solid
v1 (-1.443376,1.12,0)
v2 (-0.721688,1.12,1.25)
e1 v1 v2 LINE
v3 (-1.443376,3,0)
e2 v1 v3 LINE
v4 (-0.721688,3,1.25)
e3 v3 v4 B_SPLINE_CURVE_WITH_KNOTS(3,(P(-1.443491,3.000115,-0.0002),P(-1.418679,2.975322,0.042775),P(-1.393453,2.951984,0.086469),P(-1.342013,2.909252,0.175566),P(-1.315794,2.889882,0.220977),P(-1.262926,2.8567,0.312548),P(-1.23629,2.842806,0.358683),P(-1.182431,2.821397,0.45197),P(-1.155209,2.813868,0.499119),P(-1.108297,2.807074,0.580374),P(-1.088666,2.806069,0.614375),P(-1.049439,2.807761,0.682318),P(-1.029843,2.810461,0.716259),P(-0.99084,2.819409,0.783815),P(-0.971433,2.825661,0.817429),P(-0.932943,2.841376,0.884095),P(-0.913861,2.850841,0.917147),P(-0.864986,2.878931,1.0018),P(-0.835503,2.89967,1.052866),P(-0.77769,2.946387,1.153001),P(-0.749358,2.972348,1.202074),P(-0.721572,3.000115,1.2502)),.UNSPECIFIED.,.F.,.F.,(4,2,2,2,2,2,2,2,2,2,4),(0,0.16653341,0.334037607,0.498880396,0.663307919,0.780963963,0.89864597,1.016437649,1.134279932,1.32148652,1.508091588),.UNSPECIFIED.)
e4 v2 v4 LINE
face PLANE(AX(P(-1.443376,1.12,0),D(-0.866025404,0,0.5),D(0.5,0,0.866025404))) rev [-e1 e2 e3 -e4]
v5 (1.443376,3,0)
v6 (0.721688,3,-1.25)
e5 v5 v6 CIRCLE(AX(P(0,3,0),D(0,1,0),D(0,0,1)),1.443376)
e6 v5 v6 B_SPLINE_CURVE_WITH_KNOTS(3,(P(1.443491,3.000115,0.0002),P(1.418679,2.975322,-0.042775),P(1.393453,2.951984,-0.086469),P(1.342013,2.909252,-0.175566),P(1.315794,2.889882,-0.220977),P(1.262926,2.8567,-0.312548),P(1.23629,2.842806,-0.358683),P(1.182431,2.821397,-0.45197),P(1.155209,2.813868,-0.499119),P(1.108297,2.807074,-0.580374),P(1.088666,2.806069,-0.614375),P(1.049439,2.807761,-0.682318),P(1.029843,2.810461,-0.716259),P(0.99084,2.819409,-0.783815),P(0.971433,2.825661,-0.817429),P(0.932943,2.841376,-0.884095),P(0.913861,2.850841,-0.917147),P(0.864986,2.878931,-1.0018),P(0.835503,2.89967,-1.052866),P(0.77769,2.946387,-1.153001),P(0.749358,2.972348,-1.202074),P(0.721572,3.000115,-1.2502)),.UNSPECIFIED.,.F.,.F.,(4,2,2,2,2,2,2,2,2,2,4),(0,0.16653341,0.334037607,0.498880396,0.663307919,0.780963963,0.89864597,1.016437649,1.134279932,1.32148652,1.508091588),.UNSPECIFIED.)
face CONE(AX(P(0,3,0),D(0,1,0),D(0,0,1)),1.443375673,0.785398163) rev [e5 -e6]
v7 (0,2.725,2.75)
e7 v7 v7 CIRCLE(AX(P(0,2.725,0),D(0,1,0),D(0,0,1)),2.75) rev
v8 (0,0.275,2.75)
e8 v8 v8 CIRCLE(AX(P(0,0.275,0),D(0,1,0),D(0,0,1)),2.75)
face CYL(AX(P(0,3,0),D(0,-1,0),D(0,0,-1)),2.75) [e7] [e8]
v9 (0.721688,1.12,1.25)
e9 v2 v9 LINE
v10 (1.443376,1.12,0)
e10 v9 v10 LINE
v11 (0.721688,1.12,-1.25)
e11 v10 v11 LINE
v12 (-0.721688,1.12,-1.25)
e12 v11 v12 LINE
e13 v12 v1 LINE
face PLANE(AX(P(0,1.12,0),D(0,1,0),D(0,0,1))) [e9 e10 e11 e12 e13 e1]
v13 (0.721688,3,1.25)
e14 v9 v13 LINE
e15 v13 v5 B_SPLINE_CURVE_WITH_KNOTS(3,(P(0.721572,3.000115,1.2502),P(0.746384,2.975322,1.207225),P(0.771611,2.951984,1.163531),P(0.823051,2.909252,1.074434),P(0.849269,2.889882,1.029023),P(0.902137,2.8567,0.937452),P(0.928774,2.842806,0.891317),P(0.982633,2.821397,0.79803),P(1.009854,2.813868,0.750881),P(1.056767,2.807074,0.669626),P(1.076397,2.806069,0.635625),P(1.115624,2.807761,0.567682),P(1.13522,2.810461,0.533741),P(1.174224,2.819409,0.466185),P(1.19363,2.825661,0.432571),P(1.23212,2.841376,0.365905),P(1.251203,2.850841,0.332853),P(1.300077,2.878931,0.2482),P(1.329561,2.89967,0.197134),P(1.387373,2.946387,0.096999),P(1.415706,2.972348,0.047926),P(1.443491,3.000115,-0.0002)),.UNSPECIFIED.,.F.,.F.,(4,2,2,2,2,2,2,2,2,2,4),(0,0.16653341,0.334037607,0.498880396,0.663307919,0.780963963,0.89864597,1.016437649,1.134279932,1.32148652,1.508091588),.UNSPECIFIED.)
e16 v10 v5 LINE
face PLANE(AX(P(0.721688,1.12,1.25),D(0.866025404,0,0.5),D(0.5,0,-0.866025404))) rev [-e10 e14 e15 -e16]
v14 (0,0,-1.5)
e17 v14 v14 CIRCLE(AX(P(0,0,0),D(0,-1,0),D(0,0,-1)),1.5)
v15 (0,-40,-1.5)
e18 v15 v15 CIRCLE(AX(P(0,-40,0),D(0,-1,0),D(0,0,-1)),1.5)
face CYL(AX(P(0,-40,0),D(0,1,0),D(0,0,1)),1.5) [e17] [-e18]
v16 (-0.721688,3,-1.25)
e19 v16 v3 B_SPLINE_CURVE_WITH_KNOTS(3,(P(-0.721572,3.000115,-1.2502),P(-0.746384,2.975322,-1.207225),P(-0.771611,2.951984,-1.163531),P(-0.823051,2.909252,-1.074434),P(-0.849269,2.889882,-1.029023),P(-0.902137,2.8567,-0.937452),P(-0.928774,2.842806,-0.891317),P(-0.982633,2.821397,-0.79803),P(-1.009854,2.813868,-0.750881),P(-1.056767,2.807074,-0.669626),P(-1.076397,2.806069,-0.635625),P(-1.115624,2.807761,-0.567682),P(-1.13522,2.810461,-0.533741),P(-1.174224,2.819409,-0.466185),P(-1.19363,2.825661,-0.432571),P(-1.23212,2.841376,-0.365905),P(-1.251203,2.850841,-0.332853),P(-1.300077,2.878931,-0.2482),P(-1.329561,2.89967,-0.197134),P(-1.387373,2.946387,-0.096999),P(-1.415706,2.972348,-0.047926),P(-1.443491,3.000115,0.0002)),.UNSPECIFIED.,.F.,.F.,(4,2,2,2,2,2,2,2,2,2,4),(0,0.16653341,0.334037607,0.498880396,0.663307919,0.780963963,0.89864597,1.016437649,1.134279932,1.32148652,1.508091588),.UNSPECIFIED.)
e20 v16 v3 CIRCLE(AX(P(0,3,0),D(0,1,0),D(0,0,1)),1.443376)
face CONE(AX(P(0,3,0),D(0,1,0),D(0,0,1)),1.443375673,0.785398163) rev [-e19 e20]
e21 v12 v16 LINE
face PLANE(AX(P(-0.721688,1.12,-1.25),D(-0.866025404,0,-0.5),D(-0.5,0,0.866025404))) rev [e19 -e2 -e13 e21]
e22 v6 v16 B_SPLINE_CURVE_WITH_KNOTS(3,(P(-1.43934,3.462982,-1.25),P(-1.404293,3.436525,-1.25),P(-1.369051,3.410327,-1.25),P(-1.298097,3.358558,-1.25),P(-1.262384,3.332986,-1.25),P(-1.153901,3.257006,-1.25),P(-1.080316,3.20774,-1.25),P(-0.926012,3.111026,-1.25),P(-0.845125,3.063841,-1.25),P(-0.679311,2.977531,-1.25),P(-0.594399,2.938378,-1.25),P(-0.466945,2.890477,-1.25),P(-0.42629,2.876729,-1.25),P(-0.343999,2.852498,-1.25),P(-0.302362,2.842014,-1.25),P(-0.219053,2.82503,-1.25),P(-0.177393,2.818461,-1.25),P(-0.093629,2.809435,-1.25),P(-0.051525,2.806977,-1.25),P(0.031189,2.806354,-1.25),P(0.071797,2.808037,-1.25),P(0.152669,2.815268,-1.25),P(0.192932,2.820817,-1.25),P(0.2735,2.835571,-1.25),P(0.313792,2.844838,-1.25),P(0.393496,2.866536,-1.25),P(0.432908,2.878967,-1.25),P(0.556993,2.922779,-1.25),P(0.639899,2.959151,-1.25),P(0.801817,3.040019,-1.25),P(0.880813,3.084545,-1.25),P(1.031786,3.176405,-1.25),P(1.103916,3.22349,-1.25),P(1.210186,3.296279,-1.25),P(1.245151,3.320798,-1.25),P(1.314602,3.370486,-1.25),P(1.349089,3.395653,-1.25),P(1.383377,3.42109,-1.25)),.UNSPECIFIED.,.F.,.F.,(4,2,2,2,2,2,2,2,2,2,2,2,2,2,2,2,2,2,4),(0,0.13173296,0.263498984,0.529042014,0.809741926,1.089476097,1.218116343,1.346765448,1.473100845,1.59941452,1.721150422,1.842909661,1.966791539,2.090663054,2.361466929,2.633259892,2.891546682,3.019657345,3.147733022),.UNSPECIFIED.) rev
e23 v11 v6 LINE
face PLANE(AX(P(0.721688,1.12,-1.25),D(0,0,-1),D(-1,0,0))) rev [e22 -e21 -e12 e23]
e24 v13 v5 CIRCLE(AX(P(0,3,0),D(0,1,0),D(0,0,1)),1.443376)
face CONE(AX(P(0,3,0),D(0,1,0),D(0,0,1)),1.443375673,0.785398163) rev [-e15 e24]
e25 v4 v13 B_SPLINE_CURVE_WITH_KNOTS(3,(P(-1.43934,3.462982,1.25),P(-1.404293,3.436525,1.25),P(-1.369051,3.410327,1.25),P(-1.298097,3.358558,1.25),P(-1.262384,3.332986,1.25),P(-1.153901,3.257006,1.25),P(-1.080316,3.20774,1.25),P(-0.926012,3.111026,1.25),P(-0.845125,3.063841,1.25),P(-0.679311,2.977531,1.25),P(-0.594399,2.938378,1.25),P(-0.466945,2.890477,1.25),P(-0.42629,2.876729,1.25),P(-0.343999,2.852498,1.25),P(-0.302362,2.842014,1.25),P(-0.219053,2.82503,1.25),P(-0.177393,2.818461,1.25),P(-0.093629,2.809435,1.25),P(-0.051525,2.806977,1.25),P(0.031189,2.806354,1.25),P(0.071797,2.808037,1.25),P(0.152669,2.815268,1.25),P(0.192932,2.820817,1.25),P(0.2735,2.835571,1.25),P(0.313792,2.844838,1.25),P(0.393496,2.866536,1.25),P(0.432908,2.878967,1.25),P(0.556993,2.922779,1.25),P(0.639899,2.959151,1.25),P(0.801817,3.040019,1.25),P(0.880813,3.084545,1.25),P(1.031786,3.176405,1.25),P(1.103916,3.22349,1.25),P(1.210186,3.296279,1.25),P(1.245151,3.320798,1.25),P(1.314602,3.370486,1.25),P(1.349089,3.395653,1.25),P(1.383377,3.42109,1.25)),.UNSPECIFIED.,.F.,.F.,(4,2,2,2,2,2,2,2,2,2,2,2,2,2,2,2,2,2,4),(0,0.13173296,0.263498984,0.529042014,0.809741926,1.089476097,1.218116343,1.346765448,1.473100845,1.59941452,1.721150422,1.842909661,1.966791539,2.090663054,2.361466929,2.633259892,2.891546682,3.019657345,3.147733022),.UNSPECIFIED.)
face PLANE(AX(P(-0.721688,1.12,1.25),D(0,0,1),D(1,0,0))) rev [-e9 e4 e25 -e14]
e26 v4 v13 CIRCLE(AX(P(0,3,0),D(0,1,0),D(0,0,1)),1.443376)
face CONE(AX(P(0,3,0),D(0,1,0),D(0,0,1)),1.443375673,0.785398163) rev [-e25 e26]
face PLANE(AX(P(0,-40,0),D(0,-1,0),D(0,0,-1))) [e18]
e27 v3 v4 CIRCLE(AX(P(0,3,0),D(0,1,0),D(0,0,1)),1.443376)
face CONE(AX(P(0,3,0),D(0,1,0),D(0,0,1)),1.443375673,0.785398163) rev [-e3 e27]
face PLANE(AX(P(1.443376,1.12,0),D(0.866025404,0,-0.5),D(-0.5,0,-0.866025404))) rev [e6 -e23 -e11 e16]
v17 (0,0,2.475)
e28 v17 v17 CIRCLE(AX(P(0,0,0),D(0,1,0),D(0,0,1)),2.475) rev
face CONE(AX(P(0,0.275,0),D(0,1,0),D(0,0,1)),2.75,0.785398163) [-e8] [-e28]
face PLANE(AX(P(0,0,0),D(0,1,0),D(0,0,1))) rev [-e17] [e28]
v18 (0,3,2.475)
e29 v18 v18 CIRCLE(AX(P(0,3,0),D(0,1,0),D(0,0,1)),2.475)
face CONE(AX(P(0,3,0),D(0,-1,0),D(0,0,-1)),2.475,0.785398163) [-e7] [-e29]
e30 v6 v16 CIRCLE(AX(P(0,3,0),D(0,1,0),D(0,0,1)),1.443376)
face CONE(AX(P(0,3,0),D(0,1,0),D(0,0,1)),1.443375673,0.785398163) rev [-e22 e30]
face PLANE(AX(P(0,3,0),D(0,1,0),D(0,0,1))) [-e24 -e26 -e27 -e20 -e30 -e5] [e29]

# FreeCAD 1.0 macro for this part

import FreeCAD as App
import Part
import Sketcher

V = App.Vector
Q = App.Units.Quantity


def edges_at(feature, points):
    """Names of the edges that pass closest to the given points."""
    edges = feature.Shape.Edges
    near = lambda p: min(range(len(edges)), key=lambda i: edges[i].distToShape(Part.Vertex(*p))[0])
    return sorted({f"Edge{near(p) + 1}" for p in points})


def add_polygon(sketch, points):
    """Adds a closed chain of lines whose ends are joined by coincident constraints."""
    first, n = sketch.GeometryCount, len(points)
    for a, b in zip(points, points[1:] + points[:1]):
        sketch.addGeometry(Part.LineSegment(App.Vector(*a, 0), App.Vector(*b, 0)), False)
    for i in range(n):
        sketch.addConstraint(Sketcher.Constraint("Coincident", first + i, 2, first + (i + 1) % n, 1))

doc = App.newDocument("Part")
body = doc.addObject("PartDesign::Body", "Body")

sketch1 = body.newObject("Sketcher::SketchObject", "Sketch")
sketch1.AttachmentSupport = (doc.getObject("XZ_Plane"), [""])
sketch1.MapMode = "FlatFace"
sketch1.addGeometry(Part.Circle(V(0, 0, 0), V(0, 0, 1), 2.8), False)
sketch1.addConstraint([
    Sketcher.Constraint("Coincident", 0, 3, -1, 1),
    Sketcher.Constraint("Diameter", 0, Q("5.5 mm")),
])
pad1 = body.newObject("PartDesign::Pad", "Pad")
pad1.Profile = sketch1
pad1.Length = 3
pad1.Reversed = True

sketch2 = body.newObject("Sketcher::SketchObject", "Sketch001")
sketch2.AttachmentSupport = (doc.getObject("XZ_Plane"), [""])
sketch2.MapMode = "FlatFace"
sketch2.AttachmentOffset = App.Placement(V(0, 0, -3), App.Rotation())
add_polygon(sketch2, [(0.7, -1.2), (-0.7, -1.2), (-1.4, 0), (-0.7, 1.2), (0.7, 1.2), (1.4, 0)])
sketch2.addConstraint([
    Sketcher.Constraint("Horizontal", 0),
    Sketcher.Constraint("Horizontal", 3),
    Sketcher.Constraint("Symmetric", 0, 2, 3, 2, -1, 1),
    Sketcher.Constraint("Symmetric", 1, 2, 4, 2, -1, 1),
    Sketcher.Constraint("PointOnObject", 1, 2, -1),
    Sketcher.Constraint("Parallel", 2, 5),
    Sketcher.Constraint("Vertical", 0, 2, 2, 2),
    Sketcher.Constraint("Angle", 1, Q("120 deg")),
    Sketcher.Constraint("DistanceY", 0, 2, 2, 2, Q("2.5 mm")),
    Sketcher.Constraint("DistanceX", 0, 2, 0, 1, Q("1.443376 mm")),
])
pocket1 = body.newObject("PartDesign::Pocket", "Pocket")
pocket1.Profile = sketch2
pocket1.Length = 1.88
pocket1.Reversed = True

sketch3 = body.newObject("Sketcher::SketchObject", "Sketch002")
sketch3.AttachmentSupport = (doc.getObject("YZ_Plane"), [""])
sketch3.MapMode = "FlatFace"
add_polygon(sketch3, [(3, 0), (3, 1.4), (1.6, 0)])
sketch3.addConstraint([
    Sketcher.Constraint("Vertical", 0),
    Sketcher.Constraint("Horizontal", 2),
    Sketcher.Constraint("PointOnObject", 1, 2, -1),
    Sketcher.Constraint("Equal", 2, 0),
    Sketcher.Constraint("DistanceX", -1, 1, 0, 2, Q("3 mm")),
    Sketcher.Constraint("Distance", 1, Q("2.041241 mm")),
])
groove = body.newObject("PartDesign::Groove", "Groove")
groove.Profile = sketch3
groove.ReferenceAxis = (sketch3, ["H_Axis"])
groove.Angle = 360
doc.recompute()

chamfer = body.newObject("PartDesign::Chamfer", "Chamfer")
chamfer.Base = (groove, edges_at(groove, [(0, 0, -2.75), (0, 3, -2.75)]))
chamfer.Size = 0.275

sketch4 = body.newObject("Sketcher::SketchObject", "Sketch003")
sketch4.AttachmentSupport = (doc.getObject("XZ_Plane"), [""])
sketch4.MapMode = "FlatFace"
sketch4.addGeometry(Part.Circle(V(0, 0, 0), V(0, 0, 1), 1.5), False)
sketch4.addConstraint([
    Sketcher.Constraint("Coincident", 0, 3, -1, 1),
    Sketcher.Constraint("Diameter", 0, Q("3 mm")),
])
pad2 = body.newObject("PartDesign::Pad", "Pad001")
pad2.Profile = sketch4
pad2.Length = 40

doc.recompute()
